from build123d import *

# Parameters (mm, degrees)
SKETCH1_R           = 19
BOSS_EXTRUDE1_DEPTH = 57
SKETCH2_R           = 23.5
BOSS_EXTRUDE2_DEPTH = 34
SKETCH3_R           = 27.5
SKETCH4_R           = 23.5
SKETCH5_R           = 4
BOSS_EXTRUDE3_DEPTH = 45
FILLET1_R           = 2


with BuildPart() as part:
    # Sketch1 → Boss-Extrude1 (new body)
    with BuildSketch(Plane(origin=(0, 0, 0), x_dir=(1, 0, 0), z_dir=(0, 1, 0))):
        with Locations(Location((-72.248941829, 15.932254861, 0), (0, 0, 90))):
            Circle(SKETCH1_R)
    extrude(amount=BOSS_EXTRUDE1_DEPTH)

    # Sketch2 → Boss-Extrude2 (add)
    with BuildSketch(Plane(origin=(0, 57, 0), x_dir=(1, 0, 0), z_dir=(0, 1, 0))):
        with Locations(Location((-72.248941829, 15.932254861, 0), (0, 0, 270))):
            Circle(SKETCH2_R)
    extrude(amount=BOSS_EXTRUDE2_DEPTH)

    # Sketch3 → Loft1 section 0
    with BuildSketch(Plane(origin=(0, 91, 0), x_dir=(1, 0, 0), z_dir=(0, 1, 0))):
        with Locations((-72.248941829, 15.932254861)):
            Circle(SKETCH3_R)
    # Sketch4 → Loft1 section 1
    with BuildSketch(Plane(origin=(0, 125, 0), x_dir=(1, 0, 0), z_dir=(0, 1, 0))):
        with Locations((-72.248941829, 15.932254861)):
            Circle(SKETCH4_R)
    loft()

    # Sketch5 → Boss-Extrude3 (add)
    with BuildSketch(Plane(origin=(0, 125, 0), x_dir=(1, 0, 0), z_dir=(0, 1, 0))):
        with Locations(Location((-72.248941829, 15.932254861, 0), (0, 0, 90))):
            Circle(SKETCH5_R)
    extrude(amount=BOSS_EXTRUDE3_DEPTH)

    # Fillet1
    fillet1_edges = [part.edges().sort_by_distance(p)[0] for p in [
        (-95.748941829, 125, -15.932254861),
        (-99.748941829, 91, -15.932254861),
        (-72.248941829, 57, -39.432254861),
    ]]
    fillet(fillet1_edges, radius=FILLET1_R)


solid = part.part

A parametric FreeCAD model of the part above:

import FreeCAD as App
import Part
import Sketcher


def edges_at(feature, points):
    """Names of the edges that pass closest to the given points."""
    edges = feature.Shape.Edges
    near = lambda p: min(range(len(edges)), key=lambda i: edges[i].distToShape(Part.Vertex(*p))[0])
    return sorted({f"Edge{near(p) + 1}" for p in points})

doc = App.newDocument("Part")
params = doc.addObject("Spreadsheet::Sheet", "Params")
for row, (alias, value) in enumerate([
    ("sketch1_diameter", "38 mm"),
    ("pad1_length", "57 mm"),
    ("sketch2_diameter", "47 mm"),
    ("pad2_length", "34 mm"),
    ("sketch3_diameter", "55 mm"),
    ("sketch4_diameter", "47 mm"),
    ("sketch5_diameter", "8 mm"),
    ("pad3_length", "45 mm"),
    ("fillet_radius", "2 mm"),
], start=1):
    params.set(f"A{row}", alias)
    params.set(f"B{row}", "=" + value)
    params.setAlias(f"B{row}", alias)

body = doc.addObject("PartDesign::Body", "Body")

sketch1 = doc.addObject("Sketcher::SketchObject", "Sketch")
body.addObject(sketch1)
sketch1.AttachmentSupport = (doc.XZ_Plane, [""])
sketch1.MapMode = "FlatFace"
sketch1.addGeometry(Part.Circle(App.Vector(-72, -16, 0), App.Vector(0, 0, 1), 19), False)
sketch1.addConstraint([
    Sketcher.Constraint("Diameter", 0, 38.0),
    Sketcher.Constraint("DistanceX", 0, 3, -1, 1, 72.248942),
    Sketcher.Constraint("DistanceY", 0, 3, -1, 1, 15.932255),
])
sketch1.setExpression("Constraints[0]", "Params.sketch1_diameter")
pad1 = doc.addObject("PartDesign::Pad", "Pad")
body.addObject(pad1)
pad1.Profile = sketch1
pad1.setExpression("Length", "Params.pad1_length")
pad1.Reversed = True

sketch2 = doc.addObject("Sketcher::SketchObject", "Sketch001")
body.addObject(sketch2)
sketch2.AttachmentSupport = (doc.XZ_Plane, [""])
sketch2.MapMode = "FlatFace"
sketch2.AttachmentOffset = App.Placement(App.Vector(0, 0, -57), App.Rotation())
sketch2.addGeometry(Part.Circle(App.Vector(-72, -16, 0), App.Vector(0, 0, 1), 24), False)
sketch2.addConstraint([
    Sketcher.Constraint("Diameter", 0, 47.0),
    Sketcher.Constraint("DistanceX", 0, 3, -1, 1, 72.248942),
    Sketcher.Constraint("DistanceY", 0, 3, -1, 1, 15.932255),
])
sketch2.setExpression("Constraints[0]", "Params.sketch2_diameter")
pad2 = doc.addObject("PartDesign::Pad", "Pad001")
body.addObject(pad2)
pad2.Profile = sketch2
pad2.setExpression("Length", "Params.pad2_length")
pad2.Reversed = True

sketch3 = doc.addObject("Sketcher::SketchObject", "Sketch002")
body.addObject(sketch3)
sketch3.AttachmentSupport = (doc.XZ_Plane, [""])
sketch3.MapMode = "FlatFace"
sketch3.AttachmentOffset = App.Placement(App.Vector(0, 0, -91), App.Rotation())
sketch3.addGeometry(Part.Circle(App.Vector(-72, -16, 0), App.Vector(0, 0, 1), 28), False)
sketch3.addConstraint([
    Sketcher.Constraint("Diameter", 0, 55.0),
    Sketcher.Constraint("DistanceX", 0, 3, -1, 1, 72.248942),
    Sketcher.Constraint("DistanceY", 0, 3, -1, 1, 15.932255),
])
sketch3.setExpression("Constraints[0]", "Params.sketch3_diameter")

sketch4 = doc.addObject("Sketcher::SketchObject", "Sketch003")
body.addObject(sketch4)
sketch4.AttachmentSupport = (doc.XZ_Plane, [""])
sketch4.MapMode = "FlatFace"
sketch4.AttachmentOffset = App.Placement(App.Vector(0, 0, -125), App.Rotation())
sketch4.addGeometry(Part.Circle(App.Vector(-72, -16, 0), App.Vector(0, 0, 1), 24), False)
sketch4.addConstraint([
    Sketcher.Constraint("Diameter", 0, 47.0),
    Sketcher.Constraint("DistanceX", 0, 3, -1, 1, 72.248942),
    Sketcher.Constraint("DistanceY", 0, 3, -1, 1, 15.932255),
])
sketch4.setExpression("Constraints[0]", "Params.sketch4_diameter")

additiveloft = doc.addObject("PartDesign::AdditiveLoft", "AdditiveLoft")
body.addObject(additiveloft)
additiveloft.Profile = sketch3
additiveloft.Sections = [sketch4]

sketch5 = doc.addObject("Sketcher::SketchObject", "Sketch004")
body.addObject(sketch5)
sketch5.AttachmentSupport = (doc.XZ_Plane, [""])
sketch5.MapMode = "FlatFace"
sketch5.AttachmentOffset = App.Placement(App.Vector(0, 0, -125), App.Rotation())
sketch5.addGeometry(Part.Circle(App.Vector(-72.2, -15.9, 0), App.Vector(0, 0, 1), 4), False)
sketch5.addConstraint([
    Sketcher.Constraint("Diameter", 0, 8.0),
    Sketcher.Constraint("DistanceX", 0, 3, -1, 1, 72.248942),
    Sketcher.Constraint("DistanceY", 0, 3, -1, 1, 15.932255),
])
sketch5.setExpression("Constraints[0]", "Params.sketch5_diameter")
pad3 = doc.addObject("PartDesign::Pad", "Pad002")
body.addObject(pad3)
pad3.Profile = sketch5
pad3.setExpression("Length", "Params.pad3_length")
pad3.Reversed = True
doc.recompute()

fillet = doc.addObject("PartDesign::Fillet", "Fillet")
body.addObject(fillet)
fillet.Base = (pad3, edges_at(pad3, [(-95.749, 125, -15.932), (-99.749, 91, -15.932), (-72.249, 57, -39.432)]))
fillet.setExpression("Radius", "Params.fillet_radius")

doc.recompute()
